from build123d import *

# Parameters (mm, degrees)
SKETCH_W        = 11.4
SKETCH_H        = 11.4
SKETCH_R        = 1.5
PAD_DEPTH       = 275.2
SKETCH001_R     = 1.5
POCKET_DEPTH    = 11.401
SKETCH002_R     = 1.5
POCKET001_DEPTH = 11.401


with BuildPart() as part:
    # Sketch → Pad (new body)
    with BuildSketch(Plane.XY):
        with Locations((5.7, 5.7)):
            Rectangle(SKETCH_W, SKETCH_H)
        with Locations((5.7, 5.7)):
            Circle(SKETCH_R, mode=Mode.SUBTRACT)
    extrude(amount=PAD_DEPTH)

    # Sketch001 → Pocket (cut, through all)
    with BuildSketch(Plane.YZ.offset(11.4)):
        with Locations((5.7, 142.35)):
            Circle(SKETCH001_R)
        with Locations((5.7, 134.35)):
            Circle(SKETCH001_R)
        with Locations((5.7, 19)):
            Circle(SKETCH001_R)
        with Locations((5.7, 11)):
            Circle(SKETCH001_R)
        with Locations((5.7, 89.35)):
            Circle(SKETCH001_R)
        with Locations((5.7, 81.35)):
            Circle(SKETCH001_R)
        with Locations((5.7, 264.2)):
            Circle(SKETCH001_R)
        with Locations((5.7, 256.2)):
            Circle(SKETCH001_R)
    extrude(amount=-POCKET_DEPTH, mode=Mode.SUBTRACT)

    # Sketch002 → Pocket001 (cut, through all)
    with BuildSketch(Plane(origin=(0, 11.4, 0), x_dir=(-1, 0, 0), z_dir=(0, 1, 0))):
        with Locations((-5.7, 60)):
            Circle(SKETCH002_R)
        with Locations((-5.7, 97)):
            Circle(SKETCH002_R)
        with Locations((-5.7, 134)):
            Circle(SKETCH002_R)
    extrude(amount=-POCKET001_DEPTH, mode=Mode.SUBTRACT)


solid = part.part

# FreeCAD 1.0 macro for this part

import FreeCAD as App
import Part
import Sketcher
from FreeCAD import Vector


def add_polygon(sketch, points):
    """Adds a closed chain of lines whose ends are joined by coincident constraints."""
    first, n = sketch.GeometryCount, len(points)
    for a, b in zip(points, points[1:] + points[:1]):
        sketch.addGeometry(Part.LineSegment(App.Vector(*a, 0), App.Vector(*b, 0)), False)
    for i in range(n):
        sketch.addConstraint(Sketcher.Constraint("Coincident", first + i, 2, first + (i + 1) % n, 1))

doc = App.newDocument("Part")
body = doc.addObject("PartDesign::Body", "Body")

# Sketch on XY plane
sketch1 = body.newObject("Sketcher::SketchObject", "Sketch")
sketch1.AttachmentSupport = (doc.getObject("XY_Plane"), [""])
sketch1.MapMode = "FlatFace"
add_polygon(sketch1, [(0, 11.4), (0, 0), (11.4, 0), (11.4, 11.4)])  # lines 0-3
sketch1.addGeometry(Part.Circle(Vector(5.7, 5.7, 0), Vector(0, 0, 1), 1.5), False)  # 4
sketch1.addConstraint([
    Sketcher.Constraint("Vertical", 0),
    Sketcher.Constraint("Horizontal", 1),
    Sketcher.Constraint("Vertical", 2),
    Sketcher.Constraint("Horizontal", 3),
    Sketcher.Constraint("Coincident", 0, 2, -1, 1),
    Sketcher.Constraint("Equal", 3, 0),
    Sketcher.Constraint("Diameter", 4, 3.0),
    Sketcher.Constraint("DistanceX", 1, 1, 1, 2, 11.4),
    Sketcher.Constraint("DistanceX", -1, 1, 4, 3, 5.7),
    Sketcher.Constraint("DistanceY", -1, 1, 4, 3, 5.7),
])
pad1 = body.newObject("PartDesign::Pad", "Pad")
pad1.Profile = sketch1
pad1.Length = 275.2

# Sketch on YZ plane
sketch2 = body.newObject("Sketcher::SketchObject", "Sketch001")
sketch2.AttachmentSupport = (doc.getObject("YZ_Plane"), [""])
sketch2.MapMode = "FlatFace"
sketch2.AttachmentOffset = App.Placement(Vector(0, 0, 11.4), App.Rotation())
sketch2.addGeometry([
    Part.Circle(Vector(5.7, 142.3, 0), Vector(0, 0, 1), 1.5),  # 0
    Part.Circle(Vector(5.7, 134.3, 0), Vector(0, 0, 1), 1.5),  # 1
    Part.Circle(Vector(5.7, 19, 0), Vector(0, 0, 1), 1.5),  # 2
    Part.Circle(Vector(5.7, 11, 0), Vector(0, 0, 1), 1.5),  # 3
    Part.Circle(Vector(5.7, 89.3, 0), Vector(0, 0, 1), 1.5),  # 4
    Part.Circle(Vector(5.7, 81.3, 0), Vector(0, 0, 1), 1.5),  # 5
    Part.Circle(Vector(5.7, 264.2, 0), Vector(0, 0, 1), 1.5),  # 6
    Part.Circle(Vector(5.7, 256.2, 0), Vector(0, 0, 1), 1.5),  # 7
], False)
sketch2.addConstraint([
    Sketcher.Constraint("Equal", 0, 1),
    Sketcher.Constraint("Equal", 1, 2),
    Sketcher.Constraint("Equal", 2, 3),
    Sketcher.Constraint("Equal", 3, 4),
    Sketcher.Constraint("Equal", 4, 5),
    Sketcher.Constraint("Equal", 5, 6),
    Sketcher.Constraint("Equal", 6, 7),
    Sketcher.Constraint("Vertical", 0, 3, 1, 3),
    Sketcher.Constraint("Vertical", 1, 3, 2, 3),
    Sketcher.Constraint("Vertical", 2, 3, 3, 3),
    Sketcher.Constraint("Vertical", 3, 3, 4, 3),
    Sketcher.Constraint("Vertical", 4, 3, 5, 3),
    Sketcher.Constraint("Vertical", 5, 3, 6, 3),
    Sketcher.Constraint("Vertical", 6, 3, 7, 3),
    Sketcher.Constraint("Diameter", 0, 3.0),
    Sketcher.Constraint("DistanceY", -1, 1, 2, 3, 19.0),
    Sketcher.Constraint("DistanceY", -1, 1, 3, 3, 11.0),
    Sketcher.Constraint("DistanceY", 1, 3, 0, 3, 8.0),
    Sketcher.Constraint("DistanceY", 4, 3, 1, 3, 45.0),
    Sketcher.Constraint("DistanceY", 5, 3, 4, 3, 8.0),
    Sketcher.Constraint("DistanceY", 7, 3, 6, 3, 8.0),
    Sketcher.Constraint("DistanceX", -1, 1, 0, 3, 5.7),
    Sketcher.Constraint("DistanceY", -1, 1, 6, 3, 264.2),
    Sketcher.Constraint("DistanceY", -1, 1, 0, 3, 142.35),
])
pocket1 = body.newObject("PartDesign::Pocket", "Pocket")
pocket1.Profile = sketch2
pocket1.Type = "ThroughAll"

# Sketch on XZ plane
sketch3 = body.newObject("Sketcher::SketchObject", "Sketch002")
sketch3.AttachmentSupport = (doc.getObject("XZ_Plane"), [""])
sketch3.MapMode = "FlatFace"
sketch3.AttachmentOffset = App.Placement(Vector(0, 0, -11.4), App.Rotation())
sketch3.addGeometry([
    Part.Circle(Vector(5.7, 60, 0), Vector(0, 0, 1), 1.5),
    Part.Circle(Vector(5.7, 97, 0), Vector(0, 0, 1), 1.5),
    Part.Circle(Vector(5.7, 134, 0), Vector(0, 0, 1), 1.5),
], False)
sketch3.addConstraint([
    Sketcher.Constraint("Equal", 0, 1),
    Sketcher.Constraint("Equal", 1, 2),
    Sketcher.Constraint("Vertical", 0, 3, 1, 3),
    Sketcher.Constraint("Vertical", 1, 3, 2, 3),
    Sketcher.Constraint("Diameter", 0, 3.0),
    Sketcher.Constraint("DistanceY", -1, 1, 0, 3, 60.0),
    Sketcher.Constraint("DistanceY", -1, 1, 1, 3, 97.0),
    Sketcher.Constraint("DistanceY", -1, 1, 2, 3, 134.0),
    Sketcher.Constraint("DistanceX", -1, 1, 0, 3, 5.7),
])
pocket2 = body.newObject("PartDesign::Pocket", "Pocket001")
pocket2.Profile = sketch3
pocket2.Type = "ThroughAll"
pocket2.Reversed = True

doc.recompute()
